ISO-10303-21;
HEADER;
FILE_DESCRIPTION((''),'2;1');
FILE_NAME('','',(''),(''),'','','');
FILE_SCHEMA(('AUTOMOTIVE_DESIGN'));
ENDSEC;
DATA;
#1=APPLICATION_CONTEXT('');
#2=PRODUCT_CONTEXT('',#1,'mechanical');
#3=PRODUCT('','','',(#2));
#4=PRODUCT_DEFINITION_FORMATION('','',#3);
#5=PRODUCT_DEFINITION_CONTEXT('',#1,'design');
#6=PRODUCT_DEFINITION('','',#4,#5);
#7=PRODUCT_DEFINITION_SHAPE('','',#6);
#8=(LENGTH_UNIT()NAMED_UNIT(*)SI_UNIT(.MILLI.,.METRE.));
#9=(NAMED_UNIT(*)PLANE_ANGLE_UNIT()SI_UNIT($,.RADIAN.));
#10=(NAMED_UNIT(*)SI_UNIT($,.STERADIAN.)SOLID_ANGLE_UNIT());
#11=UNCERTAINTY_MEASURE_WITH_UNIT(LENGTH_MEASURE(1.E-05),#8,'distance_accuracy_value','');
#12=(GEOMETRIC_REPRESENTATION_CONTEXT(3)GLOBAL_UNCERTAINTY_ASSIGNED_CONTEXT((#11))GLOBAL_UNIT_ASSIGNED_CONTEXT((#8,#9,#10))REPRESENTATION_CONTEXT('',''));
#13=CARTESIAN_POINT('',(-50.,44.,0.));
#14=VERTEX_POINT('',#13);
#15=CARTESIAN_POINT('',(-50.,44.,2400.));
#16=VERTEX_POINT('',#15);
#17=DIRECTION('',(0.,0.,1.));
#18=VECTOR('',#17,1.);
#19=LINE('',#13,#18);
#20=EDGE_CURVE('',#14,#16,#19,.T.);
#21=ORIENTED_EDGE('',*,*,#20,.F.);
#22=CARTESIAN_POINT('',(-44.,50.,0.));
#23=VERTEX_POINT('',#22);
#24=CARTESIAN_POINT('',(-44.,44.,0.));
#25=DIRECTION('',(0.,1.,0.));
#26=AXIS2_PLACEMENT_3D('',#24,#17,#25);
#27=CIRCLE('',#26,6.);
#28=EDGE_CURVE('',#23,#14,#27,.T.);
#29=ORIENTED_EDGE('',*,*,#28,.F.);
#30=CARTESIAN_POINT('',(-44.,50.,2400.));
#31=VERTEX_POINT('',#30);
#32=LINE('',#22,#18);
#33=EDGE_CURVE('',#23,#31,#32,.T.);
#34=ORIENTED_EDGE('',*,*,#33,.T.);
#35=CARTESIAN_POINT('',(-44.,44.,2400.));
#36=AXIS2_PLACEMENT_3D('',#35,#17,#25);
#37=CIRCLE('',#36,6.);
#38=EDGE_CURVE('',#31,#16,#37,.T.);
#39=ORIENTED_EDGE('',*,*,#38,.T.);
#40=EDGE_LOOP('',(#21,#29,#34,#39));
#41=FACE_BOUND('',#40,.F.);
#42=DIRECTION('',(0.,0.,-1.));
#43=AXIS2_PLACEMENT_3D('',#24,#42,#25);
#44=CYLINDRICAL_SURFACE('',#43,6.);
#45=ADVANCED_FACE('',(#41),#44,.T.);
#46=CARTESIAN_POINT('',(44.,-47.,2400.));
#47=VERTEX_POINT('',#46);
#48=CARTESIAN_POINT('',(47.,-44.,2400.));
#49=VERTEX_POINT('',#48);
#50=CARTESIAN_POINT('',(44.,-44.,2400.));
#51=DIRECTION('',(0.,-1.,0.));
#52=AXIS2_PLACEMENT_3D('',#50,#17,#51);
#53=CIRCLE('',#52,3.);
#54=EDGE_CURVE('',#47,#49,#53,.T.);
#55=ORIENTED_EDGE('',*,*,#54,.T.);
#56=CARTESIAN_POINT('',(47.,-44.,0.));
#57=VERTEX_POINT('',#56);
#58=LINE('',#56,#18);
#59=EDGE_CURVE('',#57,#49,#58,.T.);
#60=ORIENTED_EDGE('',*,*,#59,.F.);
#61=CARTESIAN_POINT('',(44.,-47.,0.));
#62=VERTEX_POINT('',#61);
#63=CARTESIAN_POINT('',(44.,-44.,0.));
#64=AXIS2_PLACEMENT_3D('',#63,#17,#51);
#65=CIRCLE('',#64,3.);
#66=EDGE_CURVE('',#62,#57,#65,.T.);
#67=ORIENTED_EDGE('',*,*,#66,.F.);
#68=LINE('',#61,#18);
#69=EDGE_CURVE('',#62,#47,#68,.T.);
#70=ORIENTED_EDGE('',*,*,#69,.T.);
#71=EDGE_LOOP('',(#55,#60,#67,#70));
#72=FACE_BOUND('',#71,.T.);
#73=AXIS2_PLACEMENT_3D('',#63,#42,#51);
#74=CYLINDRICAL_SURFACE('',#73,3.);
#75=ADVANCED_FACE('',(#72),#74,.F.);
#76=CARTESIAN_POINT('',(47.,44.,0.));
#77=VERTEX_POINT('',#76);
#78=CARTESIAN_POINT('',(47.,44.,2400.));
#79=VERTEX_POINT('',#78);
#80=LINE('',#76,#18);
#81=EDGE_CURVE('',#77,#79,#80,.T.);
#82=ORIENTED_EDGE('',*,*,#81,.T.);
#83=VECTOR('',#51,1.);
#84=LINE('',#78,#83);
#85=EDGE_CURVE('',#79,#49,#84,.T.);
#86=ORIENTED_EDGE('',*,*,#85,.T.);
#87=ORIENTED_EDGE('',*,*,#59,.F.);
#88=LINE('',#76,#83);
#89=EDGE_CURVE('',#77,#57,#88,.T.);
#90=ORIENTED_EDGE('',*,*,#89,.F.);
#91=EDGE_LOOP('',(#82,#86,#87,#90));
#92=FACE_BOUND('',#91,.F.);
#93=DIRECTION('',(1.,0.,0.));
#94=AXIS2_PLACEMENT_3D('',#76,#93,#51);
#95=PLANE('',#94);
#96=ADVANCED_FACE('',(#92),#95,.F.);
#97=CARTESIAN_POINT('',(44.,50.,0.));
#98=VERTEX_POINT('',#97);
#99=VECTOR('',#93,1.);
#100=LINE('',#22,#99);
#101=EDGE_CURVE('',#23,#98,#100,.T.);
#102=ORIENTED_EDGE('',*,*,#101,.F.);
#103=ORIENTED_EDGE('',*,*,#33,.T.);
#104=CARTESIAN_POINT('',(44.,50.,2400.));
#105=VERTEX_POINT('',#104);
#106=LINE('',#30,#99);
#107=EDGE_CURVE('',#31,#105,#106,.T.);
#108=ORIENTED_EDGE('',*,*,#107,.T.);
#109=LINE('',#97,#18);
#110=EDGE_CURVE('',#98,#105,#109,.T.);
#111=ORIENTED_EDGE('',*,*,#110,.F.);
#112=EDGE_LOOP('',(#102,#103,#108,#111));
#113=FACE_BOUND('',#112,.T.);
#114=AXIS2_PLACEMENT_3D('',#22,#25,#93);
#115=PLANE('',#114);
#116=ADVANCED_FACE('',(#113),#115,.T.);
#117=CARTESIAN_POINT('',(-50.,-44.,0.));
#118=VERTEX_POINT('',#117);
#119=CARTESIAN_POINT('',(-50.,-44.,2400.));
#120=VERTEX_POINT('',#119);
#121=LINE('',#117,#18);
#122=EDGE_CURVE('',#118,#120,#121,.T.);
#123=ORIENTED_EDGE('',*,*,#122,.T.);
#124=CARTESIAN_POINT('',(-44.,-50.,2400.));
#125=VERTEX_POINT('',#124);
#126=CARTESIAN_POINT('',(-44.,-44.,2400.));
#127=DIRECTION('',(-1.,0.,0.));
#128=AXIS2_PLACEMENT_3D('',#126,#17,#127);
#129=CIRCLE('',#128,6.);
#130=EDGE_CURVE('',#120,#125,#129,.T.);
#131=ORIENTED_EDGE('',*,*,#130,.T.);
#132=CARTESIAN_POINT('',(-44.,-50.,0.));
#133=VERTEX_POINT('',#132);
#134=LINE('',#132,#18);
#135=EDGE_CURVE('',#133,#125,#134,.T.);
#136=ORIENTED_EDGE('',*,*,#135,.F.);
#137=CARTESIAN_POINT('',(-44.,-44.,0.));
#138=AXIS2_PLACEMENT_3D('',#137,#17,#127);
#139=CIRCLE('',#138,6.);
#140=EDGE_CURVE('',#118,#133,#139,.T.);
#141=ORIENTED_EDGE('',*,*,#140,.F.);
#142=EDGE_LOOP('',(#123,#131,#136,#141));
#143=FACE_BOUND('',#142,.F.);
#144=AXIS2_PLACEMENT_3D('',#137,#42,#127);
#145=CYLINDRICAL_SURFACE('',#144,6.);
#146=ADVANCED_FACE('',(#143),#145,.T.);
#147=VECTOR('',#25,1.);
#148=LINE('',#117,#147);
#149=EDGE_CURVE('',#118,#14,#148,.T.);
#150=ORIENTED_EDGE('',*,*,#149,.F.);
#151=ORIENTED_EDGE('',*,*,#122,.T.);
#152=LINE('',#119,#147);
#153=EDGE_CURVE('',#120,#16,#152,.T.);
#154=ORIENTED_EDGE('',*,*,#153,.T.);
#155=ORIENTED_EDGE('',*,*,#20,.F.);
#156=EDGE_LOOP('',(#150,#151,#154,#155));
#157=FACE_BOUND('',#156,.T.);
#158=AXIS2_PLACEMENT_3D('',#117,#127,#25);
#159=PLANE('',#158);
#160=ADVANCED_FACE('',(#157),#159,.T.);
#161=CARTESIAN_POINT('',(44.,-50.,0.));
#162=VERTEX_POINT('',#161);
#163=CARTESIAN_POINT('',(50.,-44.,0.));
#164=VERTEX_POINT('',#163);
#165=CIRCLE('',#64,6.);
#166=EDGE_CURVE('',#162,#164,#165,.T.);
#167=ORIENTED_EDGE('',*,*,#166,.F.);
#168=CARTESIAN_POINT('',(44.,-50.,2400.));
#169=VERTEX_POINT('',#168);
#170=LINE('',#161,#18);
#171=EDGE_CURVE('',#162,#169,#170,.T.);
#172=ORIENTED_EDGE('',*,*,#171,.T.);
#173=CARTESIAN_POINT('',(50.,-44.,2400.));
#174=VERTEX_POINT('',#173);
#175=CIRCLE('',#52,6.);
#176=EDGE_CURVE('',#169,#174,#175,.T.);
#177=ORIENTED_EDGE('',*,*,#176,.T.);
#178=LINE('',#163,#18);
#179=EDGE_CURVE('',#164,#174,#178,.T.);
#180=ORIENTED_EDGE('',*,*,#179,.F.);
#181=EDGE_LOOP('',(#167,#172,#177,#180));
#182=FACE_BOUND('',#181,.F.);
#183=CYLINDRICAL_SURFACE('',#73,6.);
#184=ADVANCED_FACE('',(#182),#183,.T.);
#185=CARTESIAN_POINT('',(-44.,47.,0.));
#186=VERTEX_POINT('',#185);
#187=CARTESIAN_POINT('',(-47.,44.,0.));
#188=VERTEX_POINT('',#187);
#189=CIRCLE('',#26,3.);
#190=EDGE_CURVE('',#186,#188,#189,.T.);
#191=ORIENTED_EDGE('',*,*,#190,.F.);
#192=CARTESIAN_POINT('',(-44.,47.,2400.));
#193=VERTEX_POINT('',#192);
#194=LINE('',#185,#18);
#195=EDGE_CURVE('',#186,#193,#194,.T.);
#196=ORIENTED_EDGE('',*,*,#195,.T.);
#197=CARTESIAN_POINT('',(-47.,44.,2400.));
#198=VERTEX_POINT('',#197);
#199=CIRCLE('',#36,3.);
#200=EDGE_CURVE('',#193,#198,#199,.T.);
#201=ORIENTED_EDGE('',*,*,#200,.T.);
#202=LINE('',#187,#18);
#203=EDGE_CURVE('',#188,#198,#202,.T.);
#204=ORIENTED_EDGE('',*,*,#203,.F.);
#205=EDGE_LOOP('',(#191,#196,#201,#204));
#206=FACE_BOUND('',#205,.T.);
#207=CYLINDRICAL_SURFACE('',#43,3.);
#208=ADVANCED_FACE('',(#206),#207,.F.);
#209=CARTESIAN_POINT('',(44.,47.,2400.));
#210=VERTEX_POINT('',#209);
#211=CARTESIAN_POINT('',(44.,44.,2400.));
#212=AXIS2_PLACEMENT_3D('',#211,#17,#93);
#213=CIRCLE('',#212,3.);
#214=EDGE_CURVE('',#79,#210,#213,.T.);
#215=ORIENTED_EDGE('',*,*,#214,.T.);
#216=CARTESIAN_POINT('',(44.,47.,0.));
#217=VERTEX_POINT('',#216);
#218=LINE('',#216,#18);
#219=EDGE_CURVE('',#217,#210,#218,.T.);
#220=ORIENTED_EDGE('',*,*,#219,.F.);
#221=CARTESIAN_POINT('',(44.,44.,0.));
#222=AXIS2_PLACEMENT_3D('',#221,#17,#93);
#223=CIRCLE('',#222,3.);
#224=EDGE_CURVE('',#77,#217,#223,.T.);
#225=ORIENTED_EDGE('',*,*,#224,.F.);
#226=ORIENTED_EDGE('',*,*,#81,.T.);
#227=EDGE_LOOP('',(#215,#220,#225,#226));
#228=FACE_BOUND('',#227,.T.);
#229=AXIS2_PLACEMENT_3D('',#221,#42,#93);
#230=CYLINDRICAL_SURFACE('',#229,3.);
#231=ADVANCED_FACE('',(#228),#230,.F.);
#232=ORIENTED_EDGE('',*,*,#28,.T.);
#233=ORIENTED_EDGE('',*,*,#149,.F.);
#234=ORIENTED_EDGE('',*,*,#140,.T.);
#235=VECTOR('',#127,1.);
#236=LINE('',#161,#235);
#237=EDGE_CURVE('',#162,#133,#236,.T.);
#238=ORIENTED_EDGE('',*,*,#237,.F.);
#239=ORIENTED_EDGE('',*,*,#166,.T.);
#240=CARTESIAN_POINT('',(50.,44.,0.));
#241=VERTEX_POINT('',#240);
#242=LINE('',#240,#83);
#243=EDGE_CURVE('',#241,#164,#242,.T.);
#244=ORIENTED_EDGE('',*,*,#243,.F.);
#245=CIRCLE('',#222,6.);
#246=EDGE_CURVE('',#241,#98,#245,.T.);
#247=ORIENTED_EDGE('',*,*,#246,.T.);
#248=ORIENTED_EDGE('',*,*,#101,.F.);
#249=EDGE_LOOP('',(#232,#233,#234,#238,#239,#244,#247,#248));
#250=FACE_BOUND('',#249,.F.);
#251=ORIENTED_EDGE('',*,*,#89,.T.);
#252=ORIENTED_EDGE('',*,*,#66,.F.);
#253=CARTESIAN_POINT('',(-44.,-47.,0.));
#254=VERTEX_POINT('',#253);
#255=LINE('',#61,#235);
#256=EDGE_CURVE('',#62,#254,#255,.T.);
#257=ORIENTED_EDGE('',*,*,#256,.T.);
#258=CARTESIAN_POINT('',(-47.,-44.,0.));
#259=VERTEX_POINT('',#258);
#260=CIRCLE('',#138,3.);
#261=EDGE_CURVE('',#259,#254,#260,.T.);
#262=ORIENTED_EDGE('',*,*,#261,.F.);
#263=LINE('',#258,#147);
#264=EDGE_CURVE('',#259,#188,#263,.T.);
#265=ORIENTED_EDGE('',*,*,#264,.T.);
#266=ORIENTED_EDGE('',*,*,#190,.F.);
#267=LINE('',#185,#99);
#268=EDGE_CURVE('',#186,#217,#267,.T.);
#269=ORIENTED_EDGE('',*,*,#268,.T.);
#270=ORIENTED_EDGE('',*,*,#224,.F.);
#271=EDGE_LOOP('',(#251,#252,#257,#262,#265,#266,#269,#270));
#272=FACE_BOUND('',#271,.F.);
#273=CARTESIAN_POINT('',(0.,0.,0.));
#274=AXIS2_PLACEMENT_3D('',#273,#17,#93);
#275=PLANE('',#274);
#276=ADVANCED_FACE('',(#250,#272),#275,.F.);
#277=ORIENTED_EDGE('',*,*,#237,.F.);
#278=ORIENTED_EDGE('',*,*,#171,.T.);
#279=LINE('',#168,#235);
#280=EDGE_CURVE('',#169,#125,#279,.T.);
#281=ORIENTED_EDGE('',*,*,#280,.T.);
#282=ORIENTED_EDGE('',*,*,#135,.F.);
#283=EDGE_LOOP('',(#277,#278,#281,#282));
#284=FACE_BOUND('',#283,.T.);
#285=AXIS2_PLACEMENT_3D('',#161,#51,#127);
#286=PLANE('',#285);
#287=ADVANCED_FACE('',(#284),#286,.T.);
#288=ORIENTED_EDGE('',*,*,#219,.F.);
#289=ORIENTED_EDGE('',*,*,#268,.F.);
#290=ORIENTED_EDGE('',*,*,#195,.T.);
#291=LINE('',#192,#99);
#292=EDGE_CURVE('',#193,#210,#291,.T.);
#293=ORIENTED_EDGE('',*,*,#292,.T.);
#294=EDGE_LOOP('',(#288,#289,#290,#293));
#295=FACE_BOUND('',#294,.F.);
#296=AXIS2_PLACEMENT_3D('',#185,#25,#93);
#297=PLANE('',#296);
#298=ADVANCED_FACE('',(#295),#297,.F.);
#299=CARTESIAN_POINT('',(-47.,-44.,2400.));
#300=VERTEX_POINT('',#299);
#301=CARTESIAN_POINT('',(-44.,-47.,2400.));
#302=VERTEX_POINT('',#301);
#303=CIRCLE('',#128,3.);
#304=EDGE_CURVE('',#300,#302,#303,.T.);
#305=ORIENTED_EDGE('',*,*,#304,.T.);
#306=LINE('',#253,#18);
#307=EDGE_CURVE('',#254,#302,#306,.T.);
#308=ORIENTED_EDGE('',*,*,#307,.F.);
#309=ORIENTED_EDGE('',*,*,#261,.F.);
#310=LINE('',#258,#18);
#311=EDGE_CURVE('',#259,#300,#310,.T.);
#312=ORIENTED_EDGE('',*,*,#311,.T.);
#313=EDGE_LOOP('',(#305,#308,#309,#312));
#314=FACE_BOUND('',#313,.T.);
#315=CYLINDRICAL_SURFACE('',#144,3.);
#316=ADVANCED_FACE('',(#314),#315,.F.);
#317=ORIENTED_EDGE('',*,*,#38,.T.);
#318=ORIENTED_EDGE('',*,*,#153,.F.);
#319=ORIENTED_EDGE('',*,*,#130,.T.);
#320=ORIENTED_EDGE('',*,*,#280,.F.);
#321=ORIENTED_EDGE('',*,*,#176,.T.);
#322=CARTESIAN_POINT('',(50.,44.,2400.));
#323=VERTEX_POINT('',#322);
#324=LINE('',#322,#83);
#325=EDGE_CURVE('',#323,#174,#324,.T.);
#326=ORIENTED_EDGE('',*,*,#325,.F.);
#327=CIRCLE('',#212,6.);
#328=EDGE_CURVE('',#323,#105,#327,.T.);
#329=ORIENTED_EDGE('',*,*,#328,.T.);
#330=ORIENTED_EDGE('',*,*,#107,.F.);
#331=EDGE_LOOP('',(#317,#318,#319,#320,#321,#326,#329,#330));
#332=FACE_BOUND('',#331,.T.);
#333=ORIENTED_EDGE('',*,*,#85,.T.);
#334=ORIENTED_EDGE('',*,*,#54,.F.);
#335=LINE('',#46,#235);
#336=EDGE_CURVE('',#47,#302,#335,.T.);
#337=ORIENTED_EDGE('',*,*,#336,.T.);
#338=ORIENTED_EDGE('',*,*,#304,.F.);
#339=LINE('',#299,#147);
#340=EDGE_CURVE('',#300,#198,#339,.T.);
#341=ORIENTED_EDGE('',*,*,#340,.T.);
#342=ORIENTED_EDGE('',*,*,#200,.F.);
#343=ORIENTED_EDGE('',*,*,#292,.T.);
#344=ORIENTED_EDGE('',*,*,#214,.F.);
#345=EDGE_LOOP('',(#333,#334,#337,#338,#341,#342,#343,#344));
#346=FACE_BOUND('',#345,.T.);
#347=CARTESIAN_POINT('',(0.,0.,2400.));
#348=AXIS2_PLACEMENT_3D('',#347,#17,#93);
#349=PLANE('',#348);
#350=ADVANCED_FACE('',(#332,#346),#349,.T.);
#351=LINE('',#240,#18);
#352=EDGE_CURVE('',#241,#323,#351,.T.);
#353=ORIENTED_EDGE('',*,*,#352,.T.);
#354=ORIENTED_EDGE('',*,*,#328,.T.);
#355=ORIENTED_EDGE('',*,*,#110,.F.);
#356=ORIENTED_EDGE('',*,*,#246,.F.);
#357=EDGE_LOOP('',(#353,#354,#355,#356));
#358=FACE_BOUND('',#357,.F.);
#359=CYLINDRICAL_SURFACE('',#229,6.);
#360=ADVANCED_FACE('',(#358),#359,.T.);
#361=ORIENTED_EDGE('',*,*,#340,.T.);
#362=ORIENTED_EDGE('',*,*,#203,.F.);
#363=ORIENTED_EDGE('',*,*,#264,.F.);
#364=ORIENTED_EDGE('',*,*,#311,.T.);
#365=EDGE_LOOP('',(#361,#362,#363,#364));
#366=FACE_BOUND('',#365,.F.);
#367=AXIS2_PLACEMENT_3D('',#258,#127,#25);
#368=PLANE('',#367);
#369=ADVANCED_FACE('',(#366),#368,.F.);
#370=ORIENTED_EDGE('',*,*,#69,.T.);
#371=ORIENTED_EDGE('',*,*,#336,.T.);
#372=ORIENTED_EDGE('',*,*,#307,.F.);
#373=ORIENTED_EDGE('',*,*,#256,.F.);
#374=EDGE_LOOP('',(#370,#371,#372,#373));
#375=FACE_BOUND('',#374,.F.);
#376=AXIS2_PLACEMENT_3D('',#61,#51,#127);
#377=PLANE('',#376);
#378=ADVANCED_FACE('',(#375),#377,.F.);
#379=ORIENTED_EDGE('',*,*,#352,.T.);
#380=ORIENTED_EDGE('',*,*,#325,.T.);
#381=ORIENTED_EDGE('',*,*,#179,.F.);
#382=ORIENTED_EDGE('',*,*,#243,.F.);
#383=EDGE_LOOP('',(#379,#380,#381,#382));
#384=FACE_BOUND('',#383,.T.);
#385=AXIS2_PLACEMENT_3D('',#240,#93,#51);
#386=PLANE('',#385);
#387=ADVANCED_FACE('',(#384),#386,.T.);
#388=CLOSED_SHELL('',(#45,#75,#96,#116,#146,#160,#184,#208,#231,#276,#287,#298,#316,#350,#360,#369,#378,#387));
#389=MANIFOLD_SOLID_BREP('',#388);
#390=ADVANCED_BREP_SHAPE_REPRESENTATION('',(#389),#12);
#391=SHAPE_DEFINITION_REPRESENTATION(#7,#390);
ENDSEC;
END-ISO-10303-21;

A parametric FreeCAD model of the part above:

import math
import FreeCAD as App
import Part
import Sketcher
from FreeCAD import Vector
Q = App.Units.Quantity

doc = App.newDocument("Part")
body = doc.addObject("PartDesign::Body", "Body")

# Sketch on XY plane
sketch1 = doc.addObject("Sketcher::SketchObject", "Sketch")
body.addObject(sketch1)
sketch1.AttachmentSupport = (doc.XY_Plane, [""])
sketch1.MapMode = "FlatFace"
sketch1.addGeometry([
    Part.LineSegment(Vector(-50, 44, 0), Vector(-50, -44, 0)),  # 0
    Part.ArcOfCircle(Part.Circle(Vector(-44, -44, 0), Vector(0, 0, 1), 6), math.radians(180), math.radians(270)),  # 1
    Part.LineSegment(Vector(-44, -50, 0), Vector(44, -50, 0)),  # 2
    Part.ArcOfCircle(Part.Circle(Vector(44, -44, 0), Vector(0, 0, 1), 6), math.radians(-90), math.radians(0)),  # 3
    Part.LineSegment(Vector(50, -44, 0), Vector(50, 44, 0)),  # 4
    Part.ArcOfCircle(Part.Circle(Vector(44, 44, 0), Vector(0, 0, 1), 6), math.radians(0), math.radians(90)),  # 5
    Part.LineSegment(Vector(44, 50, 0), Vector(-44, 50, 0)),  # 6
    Part.ArcOfCircle(Part.Circle(Vector(-44, 44, 0), Vector(0, 0, 1), 6), math.radians(90), math.radians(180)),  # 7
    Part.ArcOfCircle(Part.Circle(Vector(-44, 44, 0), Vector(0, 0, 1), 3), math.radians(90), math.radians(180)),  # 8
    Part.LineSegment(Vector(-44, 47, 0), Vector(44, 47, 0)),  # 9
    Part.ArcOfCircle(Part.Circle(Vector(44, 44, 0), Vector(0, 0, 1), 3), math.radians(0), math.radians(90)),  # 10
    Part.LineSegment(Vector(47, 44, 0), Vector(47, -44, 0)),  # 11
    Part.ArcOfCircle(Part.Circle(Vector(44, -44, 0), Vector(0, 0, 1), 3), math.radians(-90), math.radians(0)),  # 12
    Part.LineSegment(Vector(44, -47, 0), Vector(-44, -47, 0)),  # 13
    Part.ArcOfCircle(Part.Circle(Vector(-44, -44, 0), Vector(0, 0, 1), 3), math.radians(180), math.radians(270)),  # 14
    Part.LineSegment(Vector(-47, -44, 0), Vector(-47, 44, 0)),  # 15
], False)
sketch1.addConstraint([
    Sketcher.Constraint("Tangent", 0, 2, 1, 1),
    Sketcher.Constraint("Tangent", 1, 2, 2, 1),
    Sketcher.Constraint("Tangent", 2, 2, 3, 1),
    Sketcher.Constraint("Tangent", 3, 2, 4, 1),
    Sketcher.Constraint("Tangent", 4, 2, 5, 1),
    Sketcher.Constraint("Tangent", 5, 2, 6, 1),
    Sketcher.Constraint("Tangent", 6, 2, 7, 1),
    Sketcher.Constraint("Tangent", 7, 2, 0, 1),
    Sketcher.Constraint("Tangent", 8, 1, 9, 1),
    Sketcher.Constraint("Tangent", 9, 2, 10, 2),
    Sketcher.Constraint("Tangent", 10, 1, 11, 1),
    Sketcher.Constraint("Tangent", 11, 2, 12, 2),
    Sketcher.Constraint("Tangent", 12, 1, 13, 1),
    Sketcher.Constraint("Tangent", 13, 2, 14, 2),
    Sketcher.Constraint("Tangent", 14, 1, 15, 1),
    Sketcher.Constraint("Tangent", 15, 2, 8, 2),
    Sketcher.Constraint("Vertical", 0),
    Sketcher.Constraint("Horizontal", 2),
    Sketcher.Constraint("Vertical", 4),
    Sketcher.Constraint("Horizontal", 6),
    Sketcher.Constraint("Horizontal", 9),
    Sketcher.Constraint("Vertical", 11),
    Sketcher.Constraint("Horizontal", 13),
    Sketcher.Constraint("Vertical", 15),
    Sketcher.Constraint("Coincident", 8, 3, 7, 3),
    Sketcher.Constraint("Coincident", 10, 3, 5, 3),
    Sketcher.Constraint("Coincident", 12, 3, 3, 3),
    Sketcher.Constraint("Equal", 1, 3),
    Sketcher.Constraint("Equal", 3, 5),
    Sketcher.Constraint("Equal", 5, 7),
    Sketcher.Constraint("Equal", 12, 14),
    Sketcher.Constraint("Symmetric", 1, 3, 5, 3, -1, 1),
    Sketcher.Constraint("Equal", 13, 0),
    Sketcher.Constraint("Radius", 1, Q("6 mm")),
    Sketcher.Constraint("Radius", 8, Q("3 mm")),
    Sketcher.Constraint("DistanceX", 0, 2, -1, 1, Q("50 mm")),
])
pad1 = doc.addObject("PartDesign::Pad", "Pad")
body.addObject(pad1)
pad1.Profile = sketch1
pad1.Length = 2400

doc.recompute()
